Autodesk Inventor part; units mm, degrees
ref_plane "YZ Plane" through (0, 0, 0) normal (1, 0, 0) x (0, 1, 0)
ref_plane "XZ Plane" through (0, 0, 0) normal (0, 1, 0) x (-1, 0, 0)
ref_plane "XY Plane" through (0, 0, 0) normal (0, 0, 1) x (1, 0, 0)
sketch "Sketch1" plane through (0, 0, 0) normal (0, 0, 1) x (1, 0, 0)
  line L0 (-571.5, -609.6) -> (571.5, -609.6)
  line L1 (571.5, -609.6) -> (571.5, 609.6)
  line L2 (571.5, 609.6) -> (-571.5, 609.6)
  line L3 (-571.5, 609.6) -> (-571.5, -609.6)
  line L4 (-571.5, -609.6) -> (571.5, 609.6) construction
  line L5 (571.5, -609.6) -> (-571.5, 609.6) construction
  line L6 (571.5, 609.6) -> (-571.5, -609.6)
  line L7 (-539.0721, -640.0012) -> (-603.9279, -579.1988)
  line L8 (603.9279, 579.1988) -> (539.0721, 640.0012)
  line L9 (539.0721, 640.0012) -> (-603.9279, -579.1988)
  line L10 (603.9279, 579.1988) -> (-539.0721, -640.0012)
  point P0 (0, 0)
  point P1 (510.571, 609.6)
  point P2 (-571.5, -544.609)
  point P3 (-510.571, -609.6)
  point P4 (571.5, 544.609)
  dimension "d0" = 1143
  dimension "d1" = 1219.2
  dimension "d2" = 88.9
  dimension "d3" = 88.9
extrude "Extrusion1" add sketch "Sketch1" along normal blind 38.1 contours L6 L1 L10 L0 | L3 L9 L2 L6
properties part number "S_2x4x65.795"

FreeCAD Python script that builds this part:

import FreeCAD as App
import Part
import Sketcher
from FreeCAD import Vector
Q = App.Units.Quantity


def add_polygon(sketch, points):
    """Adds a closed chain of lines whose ends are joined by coincident constraints."""
    first, n = sketch.GeometryCount, len(points)
    for a, b in zip(points, points[1:] + points[:1]):
        sketch.addGeometry(Part.LineSegment(App.Vector(*a, 0), App.Vector(*b, 0)), False)
    for i in range(n):
        sketch.addConstraint(Sketcher.Constraint("Coincident", first + i, 2, first + (i + 1) % n, 1))

doc = App.newDocument("Part")
body = doc.addObject("PartDesign::Body", "Body")

# Sketch on XY plane
sketch1 = body.newObject("Sketcher::SketchObject", "Sketch")
sketch1.AttachmentSupport = (doc.getObject("XY_Plane"), [""])
sketch1.MapMode = "FlatFace"
add_polygon(sketch1, [(572, 545), (572, 610), (511, 610), (-572, -545), (-572, -610), (-511, -610)])  # lines 0-5
sketch1.addConstraint([
    Sketcher.Constraint("Vertical", 0),
    Sketcher.Constraint("Horizontal", 1),
    Sketcher.Constraint("Vertical", 3),
    Sketcher.Constraint("Horizontal", 4),
    Sketcher.Constraint("Symmetric", 0, 2, 3, 2, -1, 1),
    Sketcher.Constraint("Parallel", 2, 5),
    Sketcher.Constraint("Equal", 1, 4),
    Sketcher.Constraint("DistanceX", 2, 2, 0, 2, Q("45 in")),
    Sketcher.Constraint("DistanceY", 3, 2, 1, 2, Q("48 in")),
    Sketcher.Constraint("DistanceY", 0, 1, 0, 2, Q("2.5587 in")),
    Sketcher.Constraint("DistanceX", 1, 2, 1, 1, 60.929),
])
pad1 = body.newObject("PartDesign::Pad", "Pad")
pad1.Profile = sketch1
pad1.Length = Q("1.5 in")

doc.recompute()
